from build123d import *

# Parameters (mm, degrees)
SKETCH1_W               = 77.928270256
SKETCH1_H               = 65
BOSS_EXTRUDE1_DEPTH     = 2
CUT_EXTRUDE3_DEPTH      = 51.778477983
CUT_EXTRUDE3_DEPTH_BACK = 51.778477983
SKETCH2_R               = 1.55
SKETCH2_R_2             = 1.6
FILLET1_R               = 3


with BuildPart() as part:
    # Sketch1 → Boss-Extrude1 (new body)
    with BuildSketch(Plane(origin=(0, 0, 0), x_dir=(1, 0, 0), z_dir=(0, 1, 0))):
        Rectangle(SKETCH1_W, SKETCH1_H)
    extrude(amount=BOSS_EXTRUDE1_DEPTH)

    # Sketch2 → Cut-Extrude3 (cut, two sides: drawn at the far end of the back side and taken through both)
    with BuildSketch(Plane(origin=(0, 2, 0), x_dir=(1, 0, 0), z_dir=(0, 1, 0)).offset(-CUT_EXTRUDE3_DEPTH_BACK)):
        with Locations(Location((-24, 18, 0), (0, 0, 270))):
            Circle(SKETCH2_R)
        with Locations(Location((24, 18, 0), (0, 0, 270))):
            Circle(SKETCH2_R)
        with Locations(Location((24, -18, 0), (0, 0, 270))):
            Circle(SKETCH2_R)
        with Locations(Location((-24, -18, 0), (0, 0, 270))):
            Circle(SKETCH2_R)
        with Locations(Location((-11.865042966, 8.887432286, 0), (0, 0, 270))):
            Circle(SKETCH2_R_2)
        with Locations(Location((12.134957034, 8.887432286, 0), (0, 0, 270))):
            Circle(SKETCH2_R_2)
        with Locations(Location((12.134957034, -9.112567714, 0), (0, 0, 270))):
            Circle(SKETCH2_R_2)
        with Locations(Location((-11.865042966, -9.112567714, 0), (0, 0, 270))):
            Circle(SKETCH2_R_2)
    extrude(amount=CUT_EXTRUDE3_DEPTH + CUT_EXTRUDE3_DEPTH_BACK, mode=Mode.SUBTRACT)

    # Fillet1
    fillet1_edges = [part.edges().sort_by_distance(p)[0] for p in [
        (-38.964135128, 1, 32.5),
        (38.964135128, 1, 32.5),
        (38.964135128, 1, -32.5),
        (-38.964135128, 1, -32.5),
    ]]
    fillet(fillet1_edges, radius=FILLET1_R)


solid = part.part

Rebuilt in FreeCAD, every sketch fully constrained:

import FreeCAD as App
import Part
import Sketcher
from FreeCAD import Vector


def edges_at(feature, points):
    """Names of the edges that pass closest to the given points."""
    edges = feature.Shape.Edges
    near = lambda p: min(range(len(edges)), key=lambda i: edges[i].distToShape(Part.Vertex(*p))[0])
    return sorted({f"Edge{near(p) + 1}" for p in points})


def add_polygon(sketch, points):
    """Adds a closed chain of lines whose ends are joined by coincident constraints."""
    first, n = sketch.GeometryCount, len(points)
    for a, b in zip(points, points[1:] + points[:1]):
        sketch.addGeometry(Part.LineSegment(App.Vector(*a, 0), App.Vector(*b, 0)), False)
    for i in range(n):
        sketch.addConstraint(Sketcher.Constraint("Coincident", first + i, 2, first + (i + 1) % n, 1))

doc = App.newDocument("Part")
body = doc.addObject("PartDesign::Body", "Body")

# Sketch on XZ plane
sketch1 = doc.addObject("Sketcher::SketchObject", "Sketch")
body.addObject(sketch1)
sketch1.AttachmentSupport = (doc.XZ_Plane, [""])
sketch1.MapMode = "FlatFace"
add_polygon(sketch1, [(-39, -32), (-39, 32), (39, 32), (39, -32)])  # lines 0-3
sketch1.addConstraint([
    Sketcher.Constraint("Vertical", 0),
    Sketcher.Constraint("Horizontal", 1),
    Sketcher.Constraint("Vertical", 2),
    Sketcher.Constraint("Horizontal", 3),
    Sketcher.Constraint("Symmetric", 0, 2, 2, 2, -1, 1),
    Sketcher.Constraint("DistanceY", 0, 1, 0, 2, 65.0),
    Sketcher.Constraint("DistanceX", 1, 1, 1, 2, 77.92827),
])
pad1 = doc.addObject("PartDesign::Pad", "Pad")
body.addObject(pad1)
pad1.Profile = sketch1
pad1.Length = 2
pad1.Reversed = True

# Sketch on XZ plane
sketch2 = doc.addObject("Sketcher::SketchObject", "Sketch001")
body.addObject(sketch2)
sketch2.AttachmentSupport = (doc.XZ_Plane, [""])
sketch2.MapMode = "FlatFace"
sketch2.AttachmentOffset = App.Placement(Vector(0, 0, -2), App.Rotation())
sketch2.addGeometry([
    Part.Circle(Vector(-24, -18, 0), Vector(0, 0, 1), 1.6),  # 0
    Part.Circle(Vector(24, -18, 0), Vector(0, 0, 1), 1.6),  # 1
    Part.Circle(Vector(24, 18, 0), Vector(0, 0, 1), 1.6),  # 2
    Part.Circle(Vector(-24, 18, 0), Vector(0, 0, 1), 1.6),  # 3
    Part.Circle(Vector(-11.9, -8.9, 0), Vector(0, 0, 1), 1.6),  # 4
    Part.Circle(Vector(12.1, -8.9, 0), Vector(0, 0, 1), 1.6),  # 5
    Part.Circle(Vector(12.1, 9.1, 0), Vector(0, 0, 1), 1.6),  # 6
    Part.Circle(Vector(-11.9, 9.1, 0), Vector(0, 0, 1), 1.6),  # 7
], False)
sketch2.addConstraint([
    Sketcher.Constraint("Equal", 0, 1),
    Sketcher.Constraint("Equal", 1, 2),
    Sketcher.Constraint("Equal", 2, 3),
    Sketcher.Constraint("Equal", 4, 5),
    Sketcher.Constraint("Equal", 5, 6),
    Sketcher.Constraint("Equal", 6, 7),
    Sketcher.Constraint("Symmetric", 0, 3, 2, 3, -1, 1),
    Sketcher.Constraint("Symmetric", 1, 3, 3, 3, -1, 1),
    Sketcher.Constraint("Symmetric", 0, 3, 1, 3, -2),
    Sketcher.Constraint("Horizontal", 4, 3, 5, 3),
    Sketcher.Constraint("Horizontal", 6, 3, 7, 3),
    Sketcher.Constraint("Vertical", 5, 3, 6, 3),
    Sketcher.Constraint("Vertical", 4, 3, 7, 3),
    Sketcher.Constraint("Diameter", 0, 3.1),
    Sketcher.Constraint("Diameter", 4, 3.2),
    Sketcher.Constraint("DistanceX", 0, 3, -1, 1, 24.0),
    Sketcher.Constraint("DistanceY", 0, 3, -1, 1, 18.0),
    Sketcher.Constraint("DistanceX", 4, 3, 5, 3, 24.0),
    Sketcher.Constraint("DistanceY", 5, 3, 6, 3, 18.0),
    Sketcher.Constraint("DistanceX", 4, 3, -1, 1, 11.865043),
    Sketcher.Constraint("DistanceY", 4, 3, -1, 1, 8.887432),
])
pocket1 = doc.addObject("PartDesign::Pocket", "Pocket")
body.addObject(pocket1)
pocket1.Profile = sketch2
pocket1.Type = "ThroughAll"
pocket1.Midplane = True
doc.recompute()

fillet = doc.addObject("PartDesign::Fillet", "Fillet")
body.addObject(fillet)
fillet.Base = (pocket1, edges_at(pocket1, [
    (-38.964, 1, 32.5),
    (38.964, 1, 32.5),
    (38.964, 1, -32.5),
    (-38.964, 1, -32.5),
]))
fillet.Radius = 3

doc.recompute()
